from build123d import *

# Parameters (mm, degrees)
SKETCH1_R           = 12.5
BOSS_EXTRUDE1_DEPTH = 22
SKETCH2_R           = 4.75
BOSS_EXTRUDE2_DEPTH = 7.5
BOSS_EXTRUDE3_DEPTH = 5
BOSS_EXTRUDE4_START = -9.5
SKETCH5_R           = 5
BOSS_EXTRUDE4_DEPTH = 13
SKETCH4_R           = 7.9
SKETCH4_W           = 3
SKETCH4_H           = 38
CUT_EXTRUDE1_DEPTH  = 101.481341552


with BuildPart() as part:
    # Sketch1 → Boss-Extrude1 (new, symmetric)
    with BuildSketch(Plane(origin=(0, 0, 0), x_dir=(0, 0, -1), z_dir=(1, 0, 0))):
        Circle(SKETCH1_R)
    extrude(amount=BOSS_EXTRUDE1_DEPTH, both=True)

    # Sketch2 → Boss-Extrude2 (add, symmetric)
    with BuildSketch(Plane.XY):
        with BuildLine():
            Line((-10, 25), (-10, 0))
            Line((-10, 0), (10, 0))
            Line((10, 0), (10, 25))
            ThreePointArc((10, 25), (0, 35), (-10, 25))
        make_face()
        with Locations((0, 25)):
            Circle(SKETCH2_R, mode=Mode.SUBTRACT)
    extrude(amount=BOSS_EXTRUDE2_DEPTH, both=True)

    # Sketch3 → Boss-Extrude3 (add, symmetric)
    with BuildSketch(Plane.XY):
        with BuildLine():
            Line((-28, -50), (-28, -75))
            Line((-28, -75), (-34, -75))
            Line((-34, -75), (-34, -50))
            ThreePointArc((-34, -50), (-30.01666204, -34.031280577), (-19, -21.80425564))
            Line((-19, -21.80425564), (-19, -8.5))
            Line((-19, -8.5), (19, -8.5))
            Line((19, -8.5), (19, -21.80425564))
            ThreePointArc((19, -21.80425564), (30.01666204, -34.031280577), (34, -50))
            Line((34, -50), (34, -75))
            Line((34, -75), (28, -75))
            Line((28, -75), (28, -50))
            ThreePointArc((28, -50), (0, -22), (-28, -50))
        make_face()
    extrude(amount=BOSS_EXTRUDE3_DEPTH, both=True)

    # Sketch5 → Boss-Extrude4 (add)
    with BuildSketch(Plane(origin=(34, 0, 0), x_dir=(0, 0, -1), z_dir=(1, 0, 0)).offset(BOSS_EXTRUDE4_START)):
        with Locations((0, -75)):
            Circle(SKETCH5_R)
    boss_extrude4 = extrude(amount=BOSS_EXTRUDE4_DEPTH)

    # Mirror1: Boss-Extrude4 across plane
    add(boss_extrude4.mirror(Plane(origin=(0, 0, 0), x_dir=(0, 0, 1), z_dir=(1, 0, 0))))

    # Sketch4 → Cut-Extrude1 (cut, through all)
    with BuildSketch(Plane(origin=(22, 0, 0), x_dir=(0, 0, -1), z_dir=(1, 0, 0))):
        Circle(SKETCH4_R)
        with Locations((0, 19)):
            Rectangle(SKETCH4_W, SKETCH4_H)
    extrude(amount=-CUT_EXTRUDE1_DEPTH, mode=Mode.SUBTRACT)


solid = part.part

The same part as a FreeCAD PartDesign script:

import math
import FreeCAD as App
import Part
import Sketcher

doc = App.newDocument("Part")
body = doc.addObject("PartDesign::Body", "Body")

# Sketch on YZ plane
sketch1 = doc.addObject("Sketcher::SketchObject", "Sketch")
body.addObject(sketch1)
sketch1.AttachmentSupport = (doc.YZ_Plane, [""])
sketch1.MapMode = "FlatFace"
sketch1.addGeometry(Part.Circle(App.Vector(0, 0, 0), App.Vector(0, 0, 1), 12), False)
sketch1.addConstraint(Sketcher.Constraint("Coincident", 0, 3, -1, 1))
sketch1.addConstraint(Sketcher.Constraint("Diameter", 0, 25.0))
pad1 = doc.addObject("PartDesign::Pad", "Pad")
body.addObject(pad1)
pad1.Profile = sketch1
pad1.Length = 44
pad1.Midplane = True

# Sketch on XY plane
sketch2 = doc.addObject("Sketcher::SketchObject", "Sketch001")
body.addObject(sketch2)
sketch2.AttachmentSupport = (doc.XY_Plane, [""])
sketch2.MapMode = "FlatFace"
sketch2.addGeometry(Part.LineSegment(App.Vector(-10, 25, 0), App.Vector(-10, 0, 0)), False)
sketch2.addGeometry(Part.LineSegment(App.Vector(-10, 0, 0), App.Vector(10, 0, 0)), False)
sketch2.addGeometry(Part.LineSegment(App.Vector(10, 0, 0), App.Vector(10, 25, 0)), False)
sketch2.addGeometry(Part.ArcOfCircle(Part.Circle(App.Vector(0, 25, 0), App.Vector(0, 0, 1), 10), math.radians(0), math.radians(180)), False)
sketch2.addGeometry(Part.Circle(App.Vector(0, 25, 0), App.Vector(0, 0, 1), 4.8), False)
sketch2.addConstraint(Sketcher.Constraint("Coincident", 0, 2, 1, 1))
sketch2.addConstraint(Sketcher.Constraint("Coincident", 1, 2, 2, 1))
sketch2.addConstraint(Sketcher.Constraint("Tangent", 2, 2, 3, 1))
sketch2.addConstraint(Sketcher.Constraint("Tangent", 3, 2, 0, 1))
sketch2.addConstraint(Sketcher.Constraint("Vertical", 0))
sketch2.addConstraint(Sketcher.Constraint("Horizontal", 1))
sketch2.addConstraint(Sketcher.Constraint("Vertical", 2))
sketch2.addConstraint(Sketcher.Constraint("Coincident", 4, 3, 3, 3))
sketch2.addConstraint(Sketcher.Constraint("Symmetric", 0, 2, 1, 2, -1, 1))
sketch2.addConstraint(Sketcher.Constraint("Radius", 3, 10.0))
sketch2.addConstraint(Sketcher.Constraint("Diameter", 4, 9.5))
sketch2.addConstraint(Sketcher.Constraint("DistanceY", 0, 2, 0, 1, 25.0))
pad2 = doc.addObject("PartDesign::Pad", "Pad001")
body.addObject(pad2)
pad2.Profile = sketch2
pad2.Length = 15
pad2.Midplane = True

# Sketch on XY plane
sketch3 = doc.addObject("Sketcher::SketchObject", "Sketch002")
body.addObject(sketch3)
sketch3.AttachmentSupport = (doc.XY_Plane, [""])
sketch3.MapMode = "FlatFace"
sketch3.addGeometry(Part.LineSegment(App.Vector(-28, -75, 0), App.Vector(-28, -50, 0)), False)
sketch3.addGeometry(Part.ArcOfCircle(Part.Circle(App.Vector(0, -50, 0), App.Vector(0, 0, 1), 28), math.radians(0), math.radians(180)), False)
sketch3.addGeometry(Part.LineSegment(App.Vector(28, -50, 0), App.Vector(28, -75, 0)), False)
sketch3.addGeometry(Part.LineSegment(App.Vector(28, -75, 0), App.Vector(34, -75, 0)), False)
sketch3.addGeometry(Part.LineSegment(App.Vector(34, -75, 0), App.Vector(34, -50, 0)), False)
sketch3.addGeometry(Part.ArcOfCircle(Part.Circle(App.Vector(0, -50, 0), App.Vector(0, 0, 1), 34), math.radians(0), math.radians(56)), False)
sketch3.addGeometry(Part.LineSegment(App.Vector(19, -22, 0), App.Vector(19, -8, 0)), False)
sketch3.addGeometry(Part.LineSegment(App.Vector(19, -8, 0), App.Vector(-19, -8, 0)), False)
sketch3.addGeometry(Part.LineSegment(App.Vector(-19, -8, 0), App.Vector(-19, -22, 0)), False)
sketch3.addGeometry(Part.ArcOfCircle(Part.Circle(App.Vector(0, -50, 0), App.Vector(0, 0, 1), 34), math.radians(124), math.radians(180)), False)
sketch3.addGeometry(Part.LineSegment(App.Vector(-34, -50, 0), App.Vector(-34, -75, 0)), False)
sketch3.addGeometry(Part.LineSegment(App.Vector(-34, -75, 0), App.Vector(-28, -75, 0)), False)
sketch3.addConstraint(Sketcher.Constraint("Tangent", 0, 2, 1, 2))
sketch3.addConstraint(Sketcher.Constraint("Tangent", 1, 1, 2, 1))
sketch3.addConstraint(Sketcher.Constraint("Coincident", 2, 2, 3, 1))
sketch3.addConstraint(Sketcher.Constraint("Coincident", 3, 2, 4, 1))
sketch3.addConstraint(Sketcher.Constraint("Tangent", 4, 2, 5, 1))
sketch3.addConstraint(Sketcher.Constraint("Coincident", 5, 2, 6, 1))
sketch3.addConstraint(Sketcher.Constraint("Coincident", 6, 2, 7, 1))
sketch3.addConstraint(Sketcher.Constraint("Coincident", 7, 2, 8, 1))
sketch3.addConstraint(Sketcher.Constraint("Coincident", 8, 2, 9, 1))
sketch3.addConstraint(Sketcher.Constraint("Tangent", 9, 2, 10, 1))
sketch3.addConstraint(Sketcher.Constraint("Coincident", 10, 2, 11, 1))
sketch3.addConstraint(Sketcher.Constraint("Coincident", 11, 2, 0, 1))
sketch3.addConstraint(Sketcher.Constraint("Vertical", 0))
sketch3.addConstraint(Sketcher.Constraint("Vertical", 2))
sketch3.addConstraint(Sketcher.Constraint("Horizontal", 3))
sketch3.addConstraint(Sketcher.Constraint("Vertical", 4))
sketch3.addConstraint(Sketcher.Constraint("Vertical", 6))
sketch3.addConstraint(Sketcher.Constraint("Horizontal", 7))
sketch3.addConstraint(Sketcher.Constraint("Vertical", 8))
sketch3.addConstraint(Sketcher.Constraint("Vertical", 10))
sketch3.addConstraint(Sketcher.Constraint("Horizontal", 11))
sketch3.addConstraint(Sketcher.Constraint("Coincident", 5, 3, 1, 3))
sketch3.addConstraint(Sketcher.Constraint("Coincident", 9, 3, 1, 3))
sketch3.addConstraint(Sketcher.Constraint("Equal", 5, 9))
sketch3.addConstraint(Sketcher.Constraint("Symmetric", 5, 2, 8, 2, -2))
sketch3.addConstraint(Sketcher.Constraint("Horizontal", 3, 2, 10, 2))
sketch3.addConstraint(Sketcher.Constraint("Radius", 1, 28.0))
sketch3.addConstraint(Sketcher.Constraint("Radius", 5, 34.0))
sketch3.addConstraint(Sketcher.Constraint("DistanceX", 7, 2, 7, 1, 38.0))
sketch3.addConstraint(Sketcher.Constraint("DistanceY", 0, 1, 0, 2, 25.0))
sketch3.addConstraint(Sketcher.Constraint("DistanceY", 1, 3, -1, 1, 50.0))
sketch3.addConstraint(Sketcher.Constraint("DistanceY", 6, 2, -1, 1, 8.5))
pad3 = doc.addObject("PartDesign::Pad", "Pad002")
body.addObject(pad3)
pad3.Profile = sketch3
pad3.Length = 10
pad3.Midplane = True

# Sketch on YZ plane
sketch4 = doc.addObject("Sketcher::SketchObject", "Sketch003")
body.addObject(sketch4)
sketch4.AttachmentSupport = (doc.YZ_Plane, [""])
sketch4.MapMode = "FlatFace"
sketch4.AttachmentOffset = App.Placement(App.Vector(0, 0, 24.5), App.Rotation())
sketch4.addGeometry(Part.Circle(App.Vector(-75, 0, 0), App.Vector(0, 0, 1), 5), False)
sketch4.addConstraint(Sketcher.Constraint("PointOnObject", 0, 3, -1))
sketch4.addConstraint(Sketcher.Constraint("Diameter", 0, 10.0))
sketch4.addConstraint(Sketcher.Constraint("DistanceX", 0, 3, -1, 1, 75.0))
pad4 = doc.addObject("PartDesign::Pad", "Pad003")
body.addObject(pad4)
pad4.Profile = sketch4
pad4.Length = 13
doc.recompute()

mirrored = doc.addObject("PartDesign::Mirrored", "Mirrored")
body.addObject(mirrored)
mirrored.Originals = [pad4]
mirrored.MirrorPlane = (doc.YZ_Plane, [""])
body.Tip = mirrored

# Sketch on YZ plane
sketch5 = doc.addObject("Sketcher::SketchObject", "Sketch004")
body.addObject(sketch5)
sketch5.AttachmentSupport = (doc.YZ_Plane, [""])
sketch5.MapMode = "FlatFace"
sketch5.AttachmentOffset = App.Placement(App.Vector(0, 0, 22), App.Rotation())
sketch5.addGeometry(Part.ArcOfCircle(Part.Circle(App.Vector(0, 0, 0), App.Vector(0, 0, 1), 7.9), math.radians(11), math.radians(349)), False)
sketch5.addGeometry(Part.LineSegment(App.Vector(7.8, -1.5, 0), App.Vector(38, -1.5, 0)), False)
sketch5.addGeometry(Part.LineSegment(App.Vector(38, -1.5, 0), App.Vector(38, 1.5, 0)), False)
sketch5.addGeometry(Part.LineSegment(App.Vector(38, 1.5, 0), App.Vector(7.8, 1.5, 0)), False)
sketch5.addConstraint(Sketcher.Constraint("Coincident", 0, 2, 1, 1))
sketch5.addConstraint(Sketcher.Constraint("Coincident", 1, 2, 2, 1))
sketch5.addConstraint(Sketcher.Constraint("Coincident", 2, 2, 3, 1))
sketch5.addConstraint(Sketcher.Constraint("Coincident", 3, 2, 0, 1))
sketch5.addConstraint(Sketcher.Constraint("Horizontal", 1))
sketch5.addConstraint(Sketcher.Constraint("Vertical", 2))
sketch5.addConstraint(Sketcher.Constraint("Horizontal", 3))
sketch5.addConstraint(Sketcher.Constraint("Coincident", 0, 3, -1, 1))
sketch5.addConstraint(Sketcher.Constraint("Vertical", 0, 2, 3, 2))
sketch5.addConstraint(Sketcher.Constraint("Radius", 0, 7.9))
sketch5.addConstraint(Sketcher.Constraint("DistanceY", 2, 1, 2, 2, 3.0))
sketch5.addConstraint(Sketcher.Constraint("DistanceX", -1, 1, 1, 2, 38.0))
pocket1 = doc.addObject("PartDesign::Pocket", "Pocket")
body.addObject(pocket1)
pocket1.Profile = sketch5
pocket1.Type = "ThroughAll"

doc.recompute()
